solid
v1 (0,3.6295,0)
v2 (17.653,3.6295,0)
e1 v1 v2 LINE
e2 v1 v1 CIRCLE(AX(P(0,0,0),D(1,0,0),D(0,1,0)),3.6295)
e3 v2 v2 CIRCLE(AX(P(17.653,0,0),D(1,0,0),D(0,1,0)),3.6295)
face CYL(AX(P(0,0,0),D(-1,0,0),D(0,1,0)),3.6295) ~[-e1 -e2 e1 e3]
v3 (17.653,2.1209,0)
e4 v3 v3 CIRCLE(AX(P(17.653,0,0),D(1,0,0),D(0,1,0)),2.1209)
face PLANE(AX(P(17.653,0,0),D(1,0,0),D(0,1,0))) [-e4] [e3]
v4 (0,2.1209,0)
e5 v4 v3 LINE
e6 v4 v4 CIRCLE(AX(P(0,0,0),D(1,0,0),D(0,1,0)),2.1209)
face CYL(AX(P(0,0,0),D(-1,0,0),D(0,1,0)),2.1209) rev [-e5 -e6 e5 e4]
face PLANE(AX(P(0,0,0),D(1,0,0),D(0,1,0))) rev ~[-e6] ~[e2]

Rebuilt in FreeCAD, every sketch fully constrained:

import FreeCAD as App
import Part
import Sketcher
from FreeCAD import Vector
Q = App.Units.Quantity

doc = App.newDocument("Part")
body = doc.addObject("PartDesign::Body", "Body")

# Sketch on YZ plane
sketch1 = body.newObject("Sketcher::SketchObject", "Sketch")
sketch1.AttachmentSupport = (doc.getObject("YZ_Plane"), [""])
sketch1.MapMode = "FlatFace"
sketch1.addGeometry([
    Part.Circle(Vector(0, 0, 0), Vector(0, 0, 1), 3.6),
    Part.Circle(Vector(0, 0, 0), Vector(0, 0, 1), 2.1),
], False)
sketch1.addConstraint([
    Sketcher.Constraint("Coincident", 0, 3, -1, 1),
    Sketcher.Constraint("Coincident", 1, 3, -1, 1),
    Sketcher.Constraint("Diameter", 1, Q("0.167 in")),
    Sketcher.Constraint("Diameter", 0, 7.259),
])
pad1 = body.newObject("PartDesign::Pad", "Pad")
pad1.Profile = sketch1
pad1.Length = Q("0.695 in")

doc.recompute()
